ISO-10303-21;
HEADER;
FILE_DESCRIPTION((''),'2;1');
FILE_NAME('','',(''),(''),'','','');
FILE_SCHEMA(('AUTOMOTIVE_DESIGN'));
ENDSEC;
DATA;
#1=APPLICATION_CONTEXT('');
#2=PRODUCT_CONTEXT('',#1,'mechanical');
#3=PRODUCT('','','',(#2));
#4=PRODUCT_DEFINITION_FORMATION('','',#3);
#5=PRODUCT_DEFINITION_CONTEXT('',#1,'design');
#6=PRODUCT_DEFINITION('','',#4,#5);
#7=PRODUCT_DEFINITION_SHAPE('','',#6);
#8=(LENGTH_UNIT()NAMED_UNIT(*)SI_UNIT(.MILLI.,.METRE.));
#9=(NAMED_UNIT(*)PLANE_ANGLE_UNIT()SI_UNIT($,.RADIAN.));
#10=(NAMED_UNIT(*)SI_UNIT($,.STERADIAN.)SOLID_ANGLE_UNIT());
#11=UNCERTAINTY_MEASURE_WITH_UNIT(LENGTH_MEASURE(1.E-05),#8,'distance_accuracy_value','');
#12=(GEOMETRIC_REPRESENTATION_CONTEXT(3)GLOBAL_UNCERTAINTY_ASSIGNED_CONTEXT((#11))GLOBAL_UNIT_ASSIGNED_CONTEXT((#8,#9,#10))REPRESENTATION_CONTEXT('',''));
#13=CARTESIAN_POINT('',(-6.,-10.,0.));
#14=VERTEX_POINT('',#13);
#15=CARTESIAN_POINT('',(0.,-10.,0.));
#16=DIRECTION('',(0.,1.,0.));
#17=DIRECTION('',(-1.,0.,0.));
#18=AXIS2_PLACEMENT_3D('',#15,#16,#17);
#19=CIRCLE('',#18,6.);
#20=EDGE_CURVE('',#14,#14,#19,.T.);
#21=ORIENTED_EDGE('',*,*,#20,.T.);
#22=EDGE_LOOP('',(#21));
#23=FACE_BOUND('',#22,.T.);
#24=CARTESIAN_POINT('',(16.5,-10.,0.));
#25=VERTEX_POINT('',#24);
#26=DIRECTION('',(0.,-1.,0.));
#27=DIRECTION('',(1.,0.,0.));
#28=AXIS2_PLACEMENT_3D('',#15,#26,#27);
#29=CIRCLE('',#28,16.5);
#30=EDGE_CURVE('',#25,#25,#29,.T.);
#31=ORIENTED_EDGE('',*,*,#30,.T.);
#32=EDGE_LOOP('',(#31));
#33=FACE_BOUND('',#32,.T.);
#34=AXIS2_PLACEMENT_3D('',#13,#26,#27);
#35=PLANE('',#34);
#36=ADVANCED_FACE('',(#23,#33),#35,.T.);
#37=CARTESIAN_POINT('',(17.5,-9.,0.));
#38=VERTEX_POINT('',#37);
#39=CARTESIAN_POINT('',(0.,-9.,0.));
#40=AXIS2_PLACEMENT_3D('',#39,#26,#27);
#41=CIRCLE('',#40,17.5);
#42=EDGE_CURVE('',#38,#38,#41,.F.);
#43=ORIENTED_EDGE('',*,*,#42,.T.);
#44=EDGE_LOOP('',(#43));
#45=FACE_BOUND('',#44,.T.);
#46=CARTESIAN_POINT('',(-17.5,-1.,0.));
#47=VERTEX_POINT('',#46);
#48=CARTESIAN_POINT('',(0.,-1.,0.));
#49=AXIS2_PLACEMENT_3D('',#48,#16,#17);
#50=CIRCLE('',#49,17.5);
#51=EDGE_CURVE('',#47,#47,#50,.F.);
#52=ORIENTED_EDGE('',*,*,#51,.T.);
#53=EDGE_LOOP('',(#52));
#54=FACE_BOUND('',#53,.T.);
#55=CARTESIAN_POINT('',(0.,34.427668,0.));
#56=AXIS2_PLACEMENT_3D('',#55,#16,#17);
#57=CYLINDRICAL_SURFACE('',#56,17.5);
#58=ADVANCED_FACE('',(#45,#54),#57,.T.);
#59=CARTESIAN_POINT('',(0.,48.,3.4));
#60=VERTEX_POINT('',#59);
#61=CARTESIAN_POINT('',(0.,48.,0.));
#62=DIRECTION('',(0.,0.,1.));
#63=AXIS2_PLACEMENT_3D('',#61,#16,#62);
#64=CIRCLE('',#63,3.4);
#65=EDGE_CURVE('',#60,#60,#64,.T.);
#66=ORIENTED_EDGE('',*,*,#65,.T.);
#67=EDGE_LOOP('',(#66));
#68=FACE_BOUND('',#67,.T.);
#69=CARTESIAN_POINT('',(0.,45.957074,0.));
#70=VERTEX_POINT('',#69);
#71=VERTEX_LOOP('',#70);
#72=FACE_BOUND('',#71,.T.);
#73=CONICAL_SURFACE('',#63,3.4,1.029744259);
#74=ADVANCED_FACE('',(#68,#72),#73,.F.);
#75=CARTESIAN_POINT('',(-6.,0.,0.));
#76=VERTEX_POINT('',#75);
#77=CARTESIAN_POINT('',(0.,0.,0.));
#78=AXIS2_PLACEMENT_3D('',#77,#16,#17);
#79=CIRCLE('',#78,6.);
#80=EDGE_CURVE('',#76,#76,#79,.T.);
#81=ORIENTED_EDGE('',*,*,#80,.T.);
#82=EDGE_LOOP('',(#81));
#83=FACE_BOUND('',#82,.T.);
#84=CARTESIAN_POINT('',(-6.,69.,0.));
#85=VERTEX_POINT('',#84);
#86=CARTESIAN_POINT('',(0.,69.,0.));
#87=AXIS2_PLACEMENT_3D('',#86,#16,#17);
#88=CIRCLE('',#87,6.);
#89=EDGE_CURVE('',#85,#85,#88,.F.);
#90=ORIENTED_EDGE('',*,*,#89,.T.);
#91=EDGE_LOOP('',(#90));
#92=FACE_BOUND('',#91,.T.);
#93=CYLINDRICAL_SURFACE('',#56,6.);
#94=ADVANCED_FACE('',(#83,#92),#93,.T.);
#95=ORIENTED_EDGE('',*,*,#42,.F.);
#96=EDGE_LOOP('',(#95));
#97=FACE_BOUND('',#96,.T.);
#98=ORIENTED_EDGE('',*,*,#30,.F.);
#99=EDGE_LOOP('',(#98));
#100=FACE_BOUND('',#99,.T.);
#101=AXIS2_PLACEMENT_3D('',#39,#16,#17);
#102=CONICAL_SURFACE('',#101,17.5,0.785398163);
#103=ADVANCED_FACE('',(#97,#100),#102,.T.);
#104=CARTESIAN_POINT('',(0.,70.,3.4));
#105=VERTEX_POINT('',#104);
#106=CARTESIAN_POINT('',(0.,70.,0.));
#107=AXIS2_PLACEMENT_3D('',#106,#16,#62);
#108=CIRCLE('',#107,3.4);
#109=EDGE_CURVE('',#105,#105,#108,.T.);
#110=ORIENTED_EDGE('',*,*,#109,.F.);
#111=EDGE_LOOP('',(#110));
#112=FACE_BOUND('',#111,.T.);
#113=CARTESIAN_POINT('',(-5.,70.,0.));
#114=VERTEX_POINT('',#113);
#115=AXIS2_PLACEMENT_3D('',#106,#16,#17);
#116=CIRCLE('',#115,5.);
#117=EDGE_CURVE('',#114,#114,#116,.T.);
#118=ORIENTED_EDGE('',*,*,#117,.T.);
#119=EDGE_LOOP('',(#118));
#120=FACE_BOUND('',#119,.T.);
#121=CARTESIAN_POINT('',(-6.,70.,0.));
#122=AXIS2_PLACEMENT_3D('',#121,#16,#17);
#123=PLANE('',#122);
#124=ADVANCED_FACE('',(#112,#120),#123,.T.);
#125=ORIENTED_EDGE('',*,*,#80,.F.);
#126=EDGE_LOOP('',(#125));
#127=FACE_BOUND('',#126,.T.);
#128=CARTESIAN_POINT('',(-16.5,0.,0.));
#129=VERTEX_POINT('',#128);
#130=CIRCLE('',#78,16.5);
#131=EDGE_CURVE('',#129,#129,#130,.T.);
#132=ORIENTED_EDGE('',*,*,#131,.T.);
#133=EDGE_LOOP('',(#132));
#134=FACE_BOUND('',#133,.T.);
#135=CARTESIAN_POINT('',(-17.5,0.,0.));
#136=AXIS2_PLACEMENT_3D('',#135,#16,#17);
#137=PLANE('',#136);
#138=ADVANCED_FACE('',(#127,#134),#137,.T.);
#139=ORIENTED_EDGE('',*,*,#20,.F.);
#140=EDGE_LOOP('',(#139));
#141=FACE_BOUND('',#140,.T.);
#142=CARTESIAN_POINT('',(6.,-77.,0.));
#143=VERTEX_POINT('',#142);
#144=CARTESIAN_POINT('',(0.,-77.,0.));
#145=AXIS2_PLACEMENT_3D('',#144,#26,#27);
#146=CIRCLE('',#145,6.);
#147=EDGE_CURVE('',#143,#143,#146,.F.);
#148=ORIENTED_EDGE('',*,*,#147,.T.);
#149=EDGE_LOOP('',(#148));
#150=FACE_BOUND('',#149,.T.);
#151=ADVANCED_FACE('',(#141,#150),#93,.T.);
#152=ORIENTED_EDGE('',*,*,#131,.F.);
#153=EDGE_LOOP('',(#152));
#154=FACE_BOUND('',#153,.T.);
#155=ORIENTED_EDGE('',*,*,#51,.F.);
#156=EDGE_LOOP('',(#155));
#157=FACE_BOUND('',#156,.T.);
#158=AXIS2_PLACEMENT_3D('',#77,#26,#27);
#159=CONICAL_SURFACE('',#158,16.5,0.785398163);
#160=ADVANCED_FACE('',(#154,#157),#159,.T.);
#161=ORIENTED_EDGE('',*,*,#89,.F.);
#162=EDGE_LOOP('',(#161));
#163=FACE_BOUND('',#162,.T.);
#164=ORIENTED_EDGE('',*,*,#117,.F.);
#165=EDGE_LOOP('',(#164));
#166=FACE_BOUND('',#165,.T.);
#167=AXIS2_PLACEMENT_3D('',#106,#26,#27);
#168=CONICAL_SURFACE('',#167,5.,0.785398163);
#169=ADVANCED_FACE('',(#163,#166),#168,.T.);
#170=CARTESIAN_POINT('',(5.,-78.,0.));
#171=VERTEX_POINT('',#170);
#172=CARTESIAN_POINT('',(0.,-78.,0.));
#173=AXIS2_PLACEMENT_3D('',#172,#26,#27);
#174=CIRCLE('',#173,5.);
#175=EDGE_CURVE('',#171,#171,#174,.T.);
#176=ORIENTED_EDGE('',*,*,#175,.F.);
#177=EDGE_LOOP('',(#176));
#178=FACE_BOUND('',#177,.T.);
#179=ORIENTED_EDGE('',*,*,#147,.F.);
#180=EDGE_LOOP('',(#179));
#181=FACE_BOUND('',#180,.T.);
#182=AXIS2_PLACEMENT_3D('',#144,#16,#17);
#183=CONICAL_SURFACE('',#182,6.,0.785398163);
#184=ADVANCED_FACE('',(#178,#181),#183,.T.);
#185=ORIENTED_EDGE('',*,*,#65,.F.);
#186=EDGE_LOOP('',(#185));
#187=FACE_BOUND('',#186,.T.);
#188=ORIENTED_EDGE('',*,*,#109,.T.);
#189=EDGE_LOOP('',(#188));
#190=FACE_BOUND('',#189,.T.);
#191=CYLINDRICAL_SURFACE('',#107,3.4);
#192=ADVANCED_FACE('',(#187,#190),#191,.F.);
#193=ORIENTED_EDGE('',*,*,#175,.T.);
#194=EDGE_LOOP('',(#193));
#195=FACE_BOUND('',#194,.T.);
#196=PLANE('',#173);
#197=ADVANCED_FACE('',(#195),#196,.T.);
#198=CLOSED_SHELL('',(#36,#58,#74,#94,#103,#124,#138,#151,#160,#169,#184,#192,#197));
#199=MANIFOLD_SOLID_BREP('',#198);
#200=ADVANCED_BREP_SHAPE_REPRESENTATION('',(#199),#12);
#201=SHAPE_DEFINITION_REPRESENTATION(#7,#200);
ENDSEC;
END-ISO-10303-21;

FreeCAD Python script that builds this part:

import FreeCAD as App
import Part
import Sketcher
Q = App.Units.Quantity


def edges_at(feature, points):
    """Names of the edges that pass closest to the given points."""
    edges = feature.Shape.Edges
    near = lambda p: min(range(len(edges)), key=lambda i: edges[i].distToShape(Part.Vertex(*p))[0])
    return sorted({f"Edge{near(p) + 1}" for p in points})


def add_polygon(sketch, points):
    """Adds a closed chain of lines whose ends are joined by coincident constraints."""
    first, n = sketch.GeometryCount, len(points)
    for a, b in zip(points, points[1:] + points[:1]):
        sketch.addGeometry(Part.LineSegment(App.Vector(*a, 0), App.Vector(*b, 0)), False)
    for i in range(n):
        sketch.addConstraint(Sketcher.Constraint("Coincident", first + i, 2, first + (i + 1) % n, 1))

doc = App.newDocument("Part")
body = doc.addObject("PartDesign::Body", "Body")

# Sketch on XY plane
sketch1 = body.newObject("Sketcher::SketchObject", "Sketch")
sketch1.AttachmentSupport = (doc.getObject("XY_Plane"), [""])
sketch1.MapMode = "FlatFace"
add_polygon(sketch1, [(0, -78), (0, 70), (-6, 70), (-6, 0), (-18, 0), (-18, -10), (-6, -10), (-6, -78)])  # lines 0-7
sketch1.addConstraint([
    Sketcher.Constraint("Vertical", 0),
    Sketcher.Constraint("Horizontal", 1),
    Sketcher.Constraint("Vertical", 2),
    Sketcher.Constraint("Horizontal", 3),
    Sketcher.Constraint("Vertical", 4),
    Sketcher.Constraint("Horizontal", 5),
    Sketcher.Constraint("Vertical", 6),
    Sketcher.Constraint("Horizontal", 7),
    Sketcher.Constraint("PointOnObject", 0, 2, -2),
    Sketcher.Constraint("PointOnObject", 2, 2, -1),
    Sketcher.Constraint("Vertical", 2, 2, 5, 2),
    Sketcher.Constraint("DistanceX", 1, 2, 1, 1, Q("6 mm")),
    Sketcher.Constraint("DistanceY", 0, 1, 0, 2, Q("148 mm")),
    Sketcher.Constraint("DistanceY", 2, 2, 2, 1, Q("70 mm")),
    Sketcher.Constraint("DistanceY", 4, 2, 4, 1, Q("10 mm")),
    Sketcher.Constraint("DistanceX", 3, 2, 3, 1, Q("11.5 mm")),
])
revolution = body.newObject("PartDesign::Revolution", "Revolution")
revolution.Profile = sketch1
revolution.ReferenceAxis = (sketch1, ["V_Axis"])
revolution.Angle = 360
doc.recompute()

chamfer = body.newObject("PartDesign::Chamfer", "Chamfer")
chamfer.Base = (revolution, edges_at(revolution, [
    (6, 70, 0),
    (17.5, 0, 0),
    (17.5, -10, 0),
    (6, -78, 0),
]))
chamfer.Size = 1

# Sketch on XZ plane
sketch2 = body.newObject("Sketcher::SketchObject", "Sketch001")
sketch2.AttachmentSupport = (doc.getObject("XZ_Plane"), [""])
sketch2.MapMode = "FlatFace"
sketch2.AttachmentOffset = App.Placement(App.Vector(0, 0, -70), App.Rotation())
sketch2.addGeometry(Part.Circle(App.Vector(0, 0, 0), App.Vector(0, 0, 1), 3.4), False)
sketch2.addConstraint([
    Sketcher.Constraint("Coincident", 0, 3, -1, 1),
    Sketcher.Constraint("Diameter", 0, Q("6.8 mm")),
])
doc.recompute()
hole = body.newObject("PartDesign::Hole", "Hole")
hole.Profile = sketch2
hole.ThreadType = "None"
hole.Diameter = 6.8
hole.DepthType = "Dimension"
hole.Depth = 22
hole.DrillPoint = "Angled"
hole.DrillPointAngle = 118
hole.Reversed = True

doc.recompute()
